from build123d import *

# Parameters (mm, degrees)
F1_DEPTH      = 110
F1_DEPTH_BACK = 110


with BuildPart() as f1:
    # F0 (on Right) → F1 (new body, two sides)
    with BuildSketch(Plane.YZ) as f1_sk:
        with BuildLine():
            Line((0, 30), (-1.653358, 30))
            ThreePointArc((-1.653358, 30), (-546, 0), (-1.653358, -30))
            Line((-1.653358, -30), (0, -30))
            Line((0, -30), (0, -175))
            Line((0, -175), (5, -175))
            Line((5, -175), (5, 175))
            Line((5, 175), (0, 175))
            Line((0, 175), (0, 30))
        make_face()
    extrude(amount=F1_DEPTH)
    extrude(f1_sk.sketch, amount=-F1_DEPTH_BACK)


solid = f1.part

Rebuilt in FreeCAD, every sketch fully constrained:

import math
import FreeCAD as App
import Part
import Sketcher

V = App.Vector

doc = App.newDocument("Part")
body = doc.addObject("PartDesign::Body", "Body")

# Sketch on YZ plane
sketch1 = body.newObject("Sketcher::SketchObject", "Sketch")
sketch1.AttachmentSupport = (doc.getObject("YZ_Plane"), [""])
sketch1.MapMode = "FlatFace"
sketch1.addGeometry([
    Part.LineSegment(V(0, 30, 0), V(-1.7, 30, 0)),  # 0
    Part.ArcOfCircle(Part.Circle(V(-273, 0, 0), V(0, 0, 1), 273), math.radians(6), math.radians(354)),  # 1
    Part.LineSegment(V(-1.7, -30, 0), V(0, -30, 0)),  # 2
    Part.LineSegment(V(0, -30, 0), V(0, -175, 0)),  # 3
    Part.LineSegment(V(0, -175, 0), V(5, -175, 0)),  # 4
    Part.LineSegment(V(5, -175, 0), V(5, 175, 0)),  # 5
    Part.LineSegment(V(5, 175, 0), V(0, 175, 0)),  # 6
    Part.LineSegment(V(0, 175, 0), V(0, 30, 0)),  # 7
], False)
sketch1.addConstraint([
    Sketcher.Constraint("Coincident", 0, 2, 1, 1),
    Sketcher.Constraint("Coincident", 1, 2, 2, 1),
    Sketcher.Constraint("Coincident", 2, 2, 3, 1),
    Sketcher.Constraint("Coincident", 3, 2, 4, 1),
    Sketcher.Constraint("Coincident", 4, 2, 5, 1),
    Sketcher.Constraint("Coincident", 5, 2, 6, 1),
    Sketcher.Constraint("Coincident", 6, 2, 7, 1),
    Sketcher.Constraint("Coincident", 7, 2, 0, 1),
    Sketcher.Constraint("Horizontal", 0),
    Sketcher.Constraint("Horizontal", 2),
    Sketcher.Constraint("Vertical", 3),
    Sketcher.Constraint("Horizontal", 4),
    Sketcher.Constraint("Vertical", 5),
    Sketcher.Constraint("Horizontal", 6),
    Sketcher.Constraint("Vertical", 7),
    Sketcher.Constraint("Symmetric", 3, 2, 6, 2, -1, 1),
    Sketcher.Constraint("Symmetric", 0, 2, 1, 2, -1),
    Sketcher.Constraint("PointOnObject", 2, 2, -2),
    Sketcher.Constraint("Radius", 1, 273.0),
    Sketcher.Constraint("DistanceX", 4, 1, 4, 2, 5.0),
    Sketcher.Constraint("DistanceY", 3, 2, 3, 1, 145.0),
    Sketcher.Constraint("DistanceY", 5, 1, 5, 2, 350.0),
    Sketcher.Constraint("DistanceX", 1, 3, -1, 1, 273.0),
])
pad1 = body.newObject("PartDesign::Pad", "Pad")
pad1.Profile = sketch1
pad1.Type = "TwoLengths"
pad1.Length = 110
pad1.Length2 = 110

doc.recompute()
